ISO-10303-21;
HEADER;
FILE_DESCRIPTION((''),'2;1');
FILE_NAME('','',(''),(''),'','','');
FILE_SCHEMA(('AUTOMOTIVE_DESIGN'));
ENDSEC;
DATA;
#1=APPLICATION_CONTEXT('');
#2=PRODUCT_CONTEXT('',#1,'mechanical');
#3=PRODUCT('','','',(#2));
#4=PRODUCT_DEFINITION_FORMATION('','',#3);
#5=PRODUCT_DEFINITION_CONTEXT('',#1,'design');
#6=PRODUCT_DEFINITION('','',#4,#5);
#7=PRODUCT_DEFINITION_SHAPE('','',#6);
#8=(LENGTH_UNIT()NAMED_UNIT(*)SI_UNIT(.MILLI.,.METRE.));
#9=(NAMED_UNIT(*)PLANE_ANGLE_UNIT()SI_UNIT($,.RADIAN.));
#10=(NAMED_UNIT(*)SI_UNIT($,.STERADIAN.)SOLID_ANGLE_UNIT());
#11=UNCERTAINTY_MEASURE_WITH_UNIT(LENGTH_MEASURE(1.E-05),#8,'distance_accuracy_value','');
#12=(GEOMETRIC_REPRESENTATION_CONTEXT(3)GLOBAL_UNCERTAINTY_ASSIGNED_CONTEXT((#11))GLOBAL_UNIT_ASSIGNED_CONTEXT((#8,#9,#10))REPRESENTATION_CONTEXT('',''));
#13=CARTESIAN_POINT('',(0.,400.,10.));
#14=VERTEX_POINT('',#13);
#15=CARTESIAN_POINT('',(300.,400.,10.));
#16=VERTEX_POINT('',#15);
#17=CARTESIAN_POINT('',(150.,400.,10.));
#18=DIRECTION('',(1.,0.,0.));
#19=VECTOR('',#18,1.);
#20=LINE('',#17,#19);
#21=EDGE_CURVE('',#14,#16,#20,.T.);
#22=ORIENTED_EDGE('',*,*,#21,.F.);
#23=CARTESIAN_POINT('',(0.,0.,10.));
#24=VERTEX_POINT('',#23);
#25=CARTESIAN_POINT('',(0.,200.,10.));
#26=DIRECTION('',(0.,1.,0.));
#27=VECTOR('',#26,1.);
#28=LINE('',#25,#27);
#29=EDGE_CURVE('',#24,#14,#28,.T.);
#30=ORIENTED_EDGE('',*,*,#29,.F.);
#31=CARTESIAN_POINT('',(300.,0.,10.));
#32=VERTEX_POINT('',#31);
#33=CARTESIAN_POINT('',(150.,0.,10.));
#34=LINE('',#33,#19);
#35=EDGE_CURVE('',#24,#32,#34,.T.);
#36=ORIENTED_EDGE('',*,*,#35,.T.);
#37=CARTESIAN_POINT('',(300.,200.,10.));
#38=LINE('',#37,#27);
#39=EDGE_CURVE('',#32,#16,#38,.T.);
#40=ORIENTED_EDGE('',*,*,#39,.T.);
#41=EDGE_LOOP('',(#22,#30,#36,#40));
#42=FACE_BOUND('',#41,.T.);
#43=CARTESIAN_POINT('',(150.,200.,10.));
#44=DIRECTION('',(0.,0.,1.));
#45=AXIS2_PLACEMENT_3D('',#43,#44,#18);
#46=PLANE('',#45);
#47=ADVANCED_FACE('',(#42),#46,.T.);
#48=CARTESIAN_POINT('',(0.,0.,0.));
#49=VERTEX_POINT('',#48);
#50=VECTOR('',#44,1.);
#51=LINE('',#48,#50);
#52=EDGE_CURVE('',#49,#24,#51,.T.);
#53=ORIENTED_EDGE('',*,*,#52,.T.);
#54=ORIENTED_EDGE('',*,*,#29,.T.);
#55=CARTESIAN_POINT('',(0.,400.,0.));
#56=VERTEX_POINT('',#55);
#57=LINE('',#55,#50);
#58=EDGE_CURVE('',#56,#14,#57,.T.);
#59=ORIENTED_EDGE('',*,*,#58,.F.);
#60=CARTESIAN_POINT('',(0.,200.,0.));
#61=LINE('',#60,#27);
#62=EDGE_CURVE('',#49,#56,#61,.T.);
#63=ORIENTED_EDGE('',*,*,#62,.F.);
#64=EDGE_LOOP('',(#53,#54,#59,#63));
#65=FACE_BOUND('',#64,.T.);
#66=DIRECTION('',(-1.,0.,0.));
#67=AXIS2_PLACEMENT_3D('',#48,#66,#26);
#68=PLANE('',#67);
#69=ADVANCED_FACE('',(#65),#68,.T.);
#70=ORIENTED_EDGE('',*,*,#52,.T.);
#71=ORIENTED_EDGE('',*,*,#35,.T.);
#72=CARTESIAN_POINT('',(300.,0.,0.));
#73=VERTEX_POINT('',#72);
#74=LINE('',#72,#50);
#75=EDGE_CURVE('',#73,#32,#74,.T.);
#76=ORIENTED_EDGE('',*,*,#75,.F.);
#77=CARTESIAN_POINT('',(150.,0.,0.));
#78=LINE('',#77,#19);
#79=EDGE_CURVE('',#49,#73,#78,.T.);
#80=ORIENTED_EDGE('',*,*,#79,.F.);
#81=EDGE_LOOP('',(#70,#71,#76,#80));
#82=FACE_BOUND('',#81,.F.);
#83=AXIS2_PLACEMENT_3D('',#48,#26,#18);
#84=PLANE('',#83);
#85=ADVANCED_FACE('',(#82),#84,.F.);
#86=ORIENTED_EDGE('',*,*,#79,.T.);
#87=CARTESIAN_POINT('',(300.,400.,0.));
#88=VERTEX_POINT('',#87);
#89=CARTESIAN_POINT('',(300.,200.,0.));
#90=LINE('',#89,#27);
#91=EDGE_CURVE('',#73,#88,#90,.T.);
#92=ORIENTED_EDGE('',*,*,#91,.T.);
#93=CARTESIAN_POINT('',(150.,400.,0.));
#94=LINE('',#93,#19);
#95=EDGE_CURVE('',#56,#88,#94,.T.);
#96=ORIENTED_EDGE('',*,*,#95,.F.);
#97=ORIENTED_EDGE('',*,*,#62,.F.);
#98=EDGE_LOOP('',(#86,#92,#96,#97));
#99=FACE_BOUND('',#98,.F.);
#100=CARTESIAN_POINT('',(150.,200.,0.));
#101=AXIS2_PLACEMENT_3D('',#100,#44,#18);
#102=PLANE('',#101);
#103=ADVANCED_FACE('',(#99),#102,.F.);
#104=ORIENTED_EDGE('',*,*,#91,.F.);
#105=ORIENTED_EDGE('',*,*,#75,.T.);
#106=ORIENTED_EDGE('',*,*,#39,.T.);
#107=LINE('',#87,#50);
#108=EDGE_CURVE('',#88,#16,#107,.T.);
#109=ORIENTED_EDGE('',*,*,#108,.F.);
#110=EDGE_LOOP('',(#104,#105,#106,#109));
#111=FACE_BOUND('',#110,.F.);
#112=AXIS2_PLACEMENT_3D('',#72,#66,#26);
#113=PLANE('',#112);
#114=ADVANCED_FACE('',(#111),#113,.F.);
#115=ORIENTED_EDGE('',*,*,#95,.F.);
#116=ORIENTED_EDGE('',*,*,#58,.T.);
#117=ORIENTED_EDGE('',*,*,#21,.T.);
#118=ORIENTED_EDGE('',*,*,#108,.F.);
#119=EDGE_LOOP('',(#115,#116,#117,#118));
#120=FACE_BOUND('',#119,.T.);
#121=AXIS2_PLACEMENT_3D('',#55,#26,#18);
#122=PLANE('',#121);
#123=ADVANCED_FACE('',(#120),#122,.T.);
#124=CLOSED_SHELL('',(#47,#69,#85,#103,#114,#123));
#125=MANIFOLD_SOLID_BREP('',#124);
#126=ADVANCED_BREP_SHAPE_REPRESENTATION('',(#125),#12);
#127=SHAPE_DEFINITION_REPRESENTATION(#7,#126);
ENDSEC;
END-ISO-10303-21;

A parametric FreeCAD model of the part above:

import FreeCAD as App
import Part
import Sketcher

V = App.Vector
Q = App.Units.Quantity

doc = App.newDocument("Part")
body = doc.addObject("PartDesign::Body", "Body")

# Sketch on XY plane
sketch1 = doc.addObject("Sketcher::SketchObject", "Sketch")
body.addObject(sketch1)
sketch1.AttachmentSupport = (doc.XY_Plane, [""])
sketch1.MapMode = "FlatFace"
sketch1.addGeometry(Part.LineSegment(V(0, 400, 0), V(0, 0, 0)), False)
sketch1.addGeometry(Part.LineSegment(V(0, 0, 0), V(300, 0, 0)), False)
sketch1.addGeometry(Part.LineSegment(V(300, 0, 0), V(300, 400, 0)), False)
sketch1.addGeometry(Part.LineSegment(V(300, 400, 0), V(0, 400, 0)), False)
sketch1.addConstraint(Sketcher.Constraint("Coincident", 0, 2, 1, 1))
sketch1.addConstraint(Sketcher.Constraint("Coincident", 1, 2, 2, 1))
sketch1.addConstraint(Sketcher.Constraint("Coincident", 2, 2, 3, 1))
sketch1.addConstraint(Sketcher.Constraint("Coincident", 3, 2, 0, 1))
sketch1.addConstraint(Sketcher.Constraint("Vertical", 0))
sketch1.addConstraint(Sketcher.Constraint("Horizontal", 1))
sketch1.addConstraint(Sketcher.Constraint("Vertical", 2))
sketch1.addConstraint(Sketcher.Constraint("Horizontal", 3))
sketch1.addConstraint(Sketcher.Constraint("Coincident", 0, 2, -1, 1))
sketch1.addConstraint(Sketcher.Constraint("DistanceX", 1, 1, 1, 2, Q("300 mm")))
sketch1.addConstraint(Sketcher.Constraint("DistanceY", 0, 2, 0, 1, Q("400 mm")))
pad1 = doc.addObject("PartDesign::Pad", "Pad")
body.addObject(pad1)
pad1.Profile = sketch1
pad1.Length = 10

doc.recompute()
